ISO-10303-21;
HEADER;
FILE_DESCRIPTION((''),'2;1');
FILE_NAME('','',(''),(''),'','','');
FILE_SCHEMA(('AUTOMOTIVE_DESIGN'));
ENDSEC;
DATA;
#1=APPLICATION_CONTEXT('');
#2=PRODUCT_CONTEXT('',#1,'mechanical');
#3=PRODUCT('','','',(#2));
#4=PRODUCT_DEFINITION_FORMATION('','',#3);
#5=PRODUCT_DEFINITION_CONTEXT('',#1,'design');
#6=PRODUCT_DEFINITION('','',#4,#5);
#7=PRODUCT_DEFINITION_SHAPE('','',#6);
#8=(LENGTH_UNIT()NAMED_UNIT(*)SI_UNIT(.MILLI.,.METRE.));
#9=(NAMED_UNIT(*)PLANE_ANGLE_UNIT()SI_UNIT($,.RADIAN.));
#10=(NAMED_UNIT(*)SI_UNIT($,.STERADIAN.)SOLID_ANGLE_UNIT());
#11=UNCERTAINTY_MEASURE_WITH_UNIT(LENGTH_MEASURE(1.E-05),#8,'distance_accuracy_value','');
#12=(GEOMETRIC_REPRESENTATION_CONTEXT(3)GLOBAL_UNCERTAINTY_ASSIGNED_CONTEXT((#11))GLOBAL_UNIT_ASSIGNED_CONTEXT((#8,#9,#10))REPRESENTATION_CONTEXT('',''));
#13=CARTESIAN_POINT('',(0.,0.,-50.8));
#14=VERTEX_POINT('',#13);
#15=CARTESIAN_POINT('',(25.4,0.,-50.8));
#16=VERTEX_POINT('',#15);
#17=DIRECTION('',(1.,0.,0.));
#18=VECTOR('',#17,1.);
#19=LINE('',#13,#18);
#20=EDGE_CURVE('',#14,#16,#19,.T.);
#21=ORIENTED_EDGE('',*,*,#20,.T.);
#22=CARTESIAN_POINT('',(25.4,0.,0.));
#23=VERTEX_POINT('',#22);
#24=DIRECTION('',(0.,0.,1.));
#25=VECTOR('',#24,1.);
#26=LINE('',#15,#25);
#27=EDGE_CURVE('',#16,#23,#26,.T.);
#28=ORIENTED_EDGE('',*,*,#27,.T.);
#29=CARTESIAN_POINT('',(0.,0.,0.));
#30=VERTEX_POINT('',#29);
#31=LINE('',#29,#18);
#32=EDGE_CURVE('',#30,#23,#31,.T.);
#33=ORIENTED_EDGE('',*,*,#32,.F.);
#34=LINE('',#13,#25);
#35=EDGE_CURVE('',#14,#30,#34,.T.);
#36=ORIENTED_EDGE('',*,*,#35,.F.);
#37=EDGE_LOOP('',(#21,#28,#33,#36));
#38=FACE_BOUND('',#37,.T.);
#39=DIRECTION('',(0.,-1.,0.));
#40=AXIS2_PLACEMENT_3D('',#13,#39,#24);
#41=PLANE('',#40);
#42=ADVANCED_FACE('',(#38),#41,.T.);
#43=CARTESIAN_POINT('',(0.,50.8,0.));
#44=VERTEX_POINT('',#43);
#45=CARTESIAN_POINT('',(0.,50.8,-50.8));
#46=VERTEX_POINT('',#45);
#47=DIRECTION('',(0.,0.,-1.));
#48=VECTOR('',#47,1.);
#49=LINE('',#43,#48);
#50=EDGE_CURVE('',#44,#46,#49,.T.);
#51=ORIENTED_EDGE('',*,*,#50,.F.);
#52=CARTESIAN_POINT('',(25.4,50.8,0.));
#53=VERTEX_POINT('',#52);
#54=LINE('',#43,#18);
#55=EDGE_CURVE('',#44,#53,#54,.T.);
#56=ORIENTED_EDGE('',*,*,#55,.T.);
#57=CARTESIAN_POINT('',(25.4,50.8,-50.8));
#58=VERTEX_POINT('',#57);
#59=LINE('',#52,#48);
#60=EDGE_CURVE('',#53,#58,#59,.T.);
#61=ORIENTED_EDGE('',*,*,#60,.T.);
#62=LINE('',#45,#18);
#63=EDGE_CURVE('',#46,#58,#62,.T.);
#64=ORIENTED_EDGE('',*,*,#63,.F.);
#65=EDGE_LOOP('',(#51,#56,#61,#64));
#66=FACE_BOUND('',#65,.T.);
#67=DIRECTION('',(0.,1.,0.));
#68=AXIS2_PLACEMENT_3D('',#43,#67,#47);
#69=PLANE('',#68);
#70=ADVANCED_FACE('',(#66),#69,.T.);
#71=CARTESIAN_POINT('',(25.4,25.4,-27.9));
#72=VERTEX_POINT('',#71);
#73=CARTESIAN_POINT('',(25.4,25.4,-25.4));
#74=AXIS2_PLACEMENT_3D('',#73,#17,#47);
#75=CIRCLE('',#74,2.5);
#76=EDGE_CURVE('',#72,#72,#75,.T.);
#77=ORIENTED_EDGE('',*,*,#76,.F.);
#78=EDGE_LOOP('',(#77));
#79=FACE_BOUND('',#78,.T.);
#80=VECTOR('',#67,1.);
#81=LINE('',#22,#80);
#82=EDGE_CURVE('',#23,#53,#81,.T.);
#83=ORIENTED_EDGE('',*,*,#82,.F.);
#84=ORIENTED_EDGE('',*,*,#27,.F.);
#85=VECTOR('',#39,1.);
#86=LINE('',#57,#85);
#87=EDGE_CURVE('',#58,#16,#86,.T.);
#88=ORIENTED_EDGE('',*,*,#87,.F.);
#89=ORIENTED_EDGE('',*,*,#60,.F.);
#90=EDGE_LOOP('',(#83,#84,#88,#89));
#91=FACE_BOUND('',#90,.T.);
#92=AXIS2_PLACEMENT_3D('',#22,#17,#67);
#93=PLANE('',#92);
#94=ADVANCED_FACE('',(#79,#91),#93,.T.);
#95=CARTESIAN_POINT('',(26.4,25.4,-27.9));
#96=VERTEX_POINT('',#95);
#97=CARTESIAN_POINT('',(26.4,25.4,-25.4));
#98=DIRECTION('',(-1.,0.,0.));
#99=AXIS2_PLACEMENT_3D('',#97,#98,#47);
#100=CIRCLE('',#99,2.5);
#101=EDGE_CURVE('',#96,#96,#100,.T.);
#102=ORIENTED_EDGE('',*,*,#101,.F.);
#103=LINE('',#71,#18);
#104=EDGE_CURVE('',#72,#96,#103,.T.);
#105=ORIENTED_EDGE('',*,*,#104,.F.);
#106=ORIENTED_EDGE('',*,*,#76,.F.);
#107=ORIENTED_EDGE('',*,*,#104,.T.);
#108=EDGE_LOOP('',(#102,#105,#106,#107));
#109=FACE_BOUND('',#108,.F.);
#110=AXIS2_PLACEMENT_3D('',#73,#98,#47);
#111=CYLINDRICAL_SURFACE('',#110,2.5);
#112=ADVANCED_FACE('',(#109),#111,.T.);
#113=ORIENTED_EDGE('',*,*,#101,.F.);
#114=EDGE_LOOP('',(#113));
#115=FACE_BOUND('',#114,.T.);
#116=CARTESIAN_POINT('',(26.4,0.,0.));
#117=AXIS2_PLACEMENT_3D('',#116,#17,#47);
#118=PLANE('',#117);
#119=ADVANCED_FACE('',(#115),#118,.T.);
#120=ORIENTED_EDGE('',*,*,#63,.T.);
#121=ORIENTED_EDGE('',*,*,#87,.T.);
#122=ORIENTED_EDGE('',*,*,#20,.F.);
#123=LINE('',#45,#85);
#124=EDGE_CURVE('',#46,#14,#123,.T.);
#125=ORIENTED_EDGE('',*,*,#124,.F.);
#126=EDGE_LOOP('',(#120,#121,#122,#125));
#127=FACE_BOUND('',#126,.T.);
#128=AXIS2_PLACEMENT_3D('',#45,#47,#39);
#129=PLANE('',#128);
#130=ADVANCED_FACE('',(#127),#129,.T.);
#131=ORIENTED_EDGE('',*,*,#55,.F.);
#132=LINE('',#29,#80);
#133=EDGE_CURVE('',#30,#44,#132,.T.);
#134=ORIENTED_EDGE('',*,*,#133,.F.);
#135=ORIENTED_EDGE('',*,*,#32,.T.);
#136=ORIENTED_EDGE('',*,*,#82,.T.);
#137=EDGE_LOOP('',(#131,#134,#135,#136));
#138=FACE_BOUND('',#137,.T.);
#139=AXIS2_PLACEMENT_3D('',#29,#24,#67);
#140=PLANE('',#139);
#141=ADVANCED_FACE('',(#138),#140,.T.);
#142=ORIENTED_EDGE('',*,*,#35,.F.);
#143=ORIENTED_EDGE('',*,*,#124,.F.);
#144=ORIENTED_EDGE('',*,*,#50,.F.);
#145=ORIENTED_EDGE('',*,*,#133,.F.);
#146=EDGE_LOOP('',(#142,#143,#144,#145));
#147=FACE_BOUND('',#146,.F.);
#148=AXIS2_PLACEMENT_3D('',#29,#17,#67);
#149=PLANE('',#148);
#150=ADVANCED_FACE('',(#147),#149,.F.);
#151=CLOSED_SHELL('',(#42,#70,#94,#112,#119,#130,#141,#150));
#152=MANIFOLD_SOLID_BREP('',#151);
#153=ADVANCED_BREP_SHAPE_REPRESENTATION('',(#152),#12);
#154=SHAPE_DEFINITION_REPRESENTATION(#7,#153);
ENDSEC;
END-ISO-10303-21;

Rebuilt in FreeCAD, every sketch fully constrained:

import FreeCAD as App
import Part
import Sketcher
Q = App.Units.Quantity


def add_polygon(sketch, points):
    """Adds a closed chain of lines whose ends are joined by coincident constraints."""
    first, n = sketch.GeometryCount, len(points)
    for a, b in zip(points, points[1:] + points[:1]):
        sketch.addGeometry(Part.LineSegment(App.Vector(*a, 0), App.Vector(*b, 0)), False)
    for i in range(n):
        sketch.addConstraint(Sketcher.Constraint("Coincident", first + i, 2, first + (i + 1) % n, 1))

doc = App.newDocument("Part")
body = doc.addObject("PartDesign::Body", "Body")

sketch1 = body.newObject("Sketcher::SketchObject", "Sketch")
sketch1.AttachmentSupport = (doc.getObject("YZ_Plane"), [""])
sketch1.MapMode = "FlatFace"
add_polygon(sketch1, [(50.8, 0), (0, 0), (0, -50.8), (50.8, -50.8)])
sketch1.addConstraint([
    Sketcher.Constraint("Horizontal", 0),
    Sketcher.Constraint("Vertical", 1),
    Sketcher.Constraint("Horizontal", 2),
    Sketcher.Constraint("Vertical", 3),
    Sketcher.Constraint("Coincident", 0, 2, -1, 1),
    Sketcher.Constraint("Equal", 2, 1),
    Sketcher.Constraint("DistanceX", 0, 2, 0, 1, Q("50.8 mm")),
])
pad1 = body.newObject("PartDesign::Pad", "Pad")
pad1.Profile = sketch1
pad1.Length = 25.4

sketch2 = body.newObject("Sketcher::SketchObject", "Sketch001")
sketch2.AttachmentSupport = (doc.getObject("YZ_Plane"), [""])
sketch2.MapMode = "FlatFace"
sketch2.AttachmentOffset = App.Placement(App.Vector(0, 0, 25.4), App.Rotation())
sketch2.addGeometry(Part.Circle(App.Vector(25.4, -25.4, 0), App.Vector(0, 0, 1), 2.5), False)
sketch2.addConstraint([
    Sketcher.Constraint("Diameter", 0, Q("5 mm")),
    Sketcher.Constraint("DistanceX", -1, 1, 0, 3, Q("25.4 mm")),
    Sketcher.Constraint("DistanceY", 0, 3, -1, 1, Q("25.4 mm")),
])
pad2 = body.newObject("PartDesign::Pad", "Pad001")
pad2.Profile = sketch2
pad2.Length = 1

doc.recompute()
